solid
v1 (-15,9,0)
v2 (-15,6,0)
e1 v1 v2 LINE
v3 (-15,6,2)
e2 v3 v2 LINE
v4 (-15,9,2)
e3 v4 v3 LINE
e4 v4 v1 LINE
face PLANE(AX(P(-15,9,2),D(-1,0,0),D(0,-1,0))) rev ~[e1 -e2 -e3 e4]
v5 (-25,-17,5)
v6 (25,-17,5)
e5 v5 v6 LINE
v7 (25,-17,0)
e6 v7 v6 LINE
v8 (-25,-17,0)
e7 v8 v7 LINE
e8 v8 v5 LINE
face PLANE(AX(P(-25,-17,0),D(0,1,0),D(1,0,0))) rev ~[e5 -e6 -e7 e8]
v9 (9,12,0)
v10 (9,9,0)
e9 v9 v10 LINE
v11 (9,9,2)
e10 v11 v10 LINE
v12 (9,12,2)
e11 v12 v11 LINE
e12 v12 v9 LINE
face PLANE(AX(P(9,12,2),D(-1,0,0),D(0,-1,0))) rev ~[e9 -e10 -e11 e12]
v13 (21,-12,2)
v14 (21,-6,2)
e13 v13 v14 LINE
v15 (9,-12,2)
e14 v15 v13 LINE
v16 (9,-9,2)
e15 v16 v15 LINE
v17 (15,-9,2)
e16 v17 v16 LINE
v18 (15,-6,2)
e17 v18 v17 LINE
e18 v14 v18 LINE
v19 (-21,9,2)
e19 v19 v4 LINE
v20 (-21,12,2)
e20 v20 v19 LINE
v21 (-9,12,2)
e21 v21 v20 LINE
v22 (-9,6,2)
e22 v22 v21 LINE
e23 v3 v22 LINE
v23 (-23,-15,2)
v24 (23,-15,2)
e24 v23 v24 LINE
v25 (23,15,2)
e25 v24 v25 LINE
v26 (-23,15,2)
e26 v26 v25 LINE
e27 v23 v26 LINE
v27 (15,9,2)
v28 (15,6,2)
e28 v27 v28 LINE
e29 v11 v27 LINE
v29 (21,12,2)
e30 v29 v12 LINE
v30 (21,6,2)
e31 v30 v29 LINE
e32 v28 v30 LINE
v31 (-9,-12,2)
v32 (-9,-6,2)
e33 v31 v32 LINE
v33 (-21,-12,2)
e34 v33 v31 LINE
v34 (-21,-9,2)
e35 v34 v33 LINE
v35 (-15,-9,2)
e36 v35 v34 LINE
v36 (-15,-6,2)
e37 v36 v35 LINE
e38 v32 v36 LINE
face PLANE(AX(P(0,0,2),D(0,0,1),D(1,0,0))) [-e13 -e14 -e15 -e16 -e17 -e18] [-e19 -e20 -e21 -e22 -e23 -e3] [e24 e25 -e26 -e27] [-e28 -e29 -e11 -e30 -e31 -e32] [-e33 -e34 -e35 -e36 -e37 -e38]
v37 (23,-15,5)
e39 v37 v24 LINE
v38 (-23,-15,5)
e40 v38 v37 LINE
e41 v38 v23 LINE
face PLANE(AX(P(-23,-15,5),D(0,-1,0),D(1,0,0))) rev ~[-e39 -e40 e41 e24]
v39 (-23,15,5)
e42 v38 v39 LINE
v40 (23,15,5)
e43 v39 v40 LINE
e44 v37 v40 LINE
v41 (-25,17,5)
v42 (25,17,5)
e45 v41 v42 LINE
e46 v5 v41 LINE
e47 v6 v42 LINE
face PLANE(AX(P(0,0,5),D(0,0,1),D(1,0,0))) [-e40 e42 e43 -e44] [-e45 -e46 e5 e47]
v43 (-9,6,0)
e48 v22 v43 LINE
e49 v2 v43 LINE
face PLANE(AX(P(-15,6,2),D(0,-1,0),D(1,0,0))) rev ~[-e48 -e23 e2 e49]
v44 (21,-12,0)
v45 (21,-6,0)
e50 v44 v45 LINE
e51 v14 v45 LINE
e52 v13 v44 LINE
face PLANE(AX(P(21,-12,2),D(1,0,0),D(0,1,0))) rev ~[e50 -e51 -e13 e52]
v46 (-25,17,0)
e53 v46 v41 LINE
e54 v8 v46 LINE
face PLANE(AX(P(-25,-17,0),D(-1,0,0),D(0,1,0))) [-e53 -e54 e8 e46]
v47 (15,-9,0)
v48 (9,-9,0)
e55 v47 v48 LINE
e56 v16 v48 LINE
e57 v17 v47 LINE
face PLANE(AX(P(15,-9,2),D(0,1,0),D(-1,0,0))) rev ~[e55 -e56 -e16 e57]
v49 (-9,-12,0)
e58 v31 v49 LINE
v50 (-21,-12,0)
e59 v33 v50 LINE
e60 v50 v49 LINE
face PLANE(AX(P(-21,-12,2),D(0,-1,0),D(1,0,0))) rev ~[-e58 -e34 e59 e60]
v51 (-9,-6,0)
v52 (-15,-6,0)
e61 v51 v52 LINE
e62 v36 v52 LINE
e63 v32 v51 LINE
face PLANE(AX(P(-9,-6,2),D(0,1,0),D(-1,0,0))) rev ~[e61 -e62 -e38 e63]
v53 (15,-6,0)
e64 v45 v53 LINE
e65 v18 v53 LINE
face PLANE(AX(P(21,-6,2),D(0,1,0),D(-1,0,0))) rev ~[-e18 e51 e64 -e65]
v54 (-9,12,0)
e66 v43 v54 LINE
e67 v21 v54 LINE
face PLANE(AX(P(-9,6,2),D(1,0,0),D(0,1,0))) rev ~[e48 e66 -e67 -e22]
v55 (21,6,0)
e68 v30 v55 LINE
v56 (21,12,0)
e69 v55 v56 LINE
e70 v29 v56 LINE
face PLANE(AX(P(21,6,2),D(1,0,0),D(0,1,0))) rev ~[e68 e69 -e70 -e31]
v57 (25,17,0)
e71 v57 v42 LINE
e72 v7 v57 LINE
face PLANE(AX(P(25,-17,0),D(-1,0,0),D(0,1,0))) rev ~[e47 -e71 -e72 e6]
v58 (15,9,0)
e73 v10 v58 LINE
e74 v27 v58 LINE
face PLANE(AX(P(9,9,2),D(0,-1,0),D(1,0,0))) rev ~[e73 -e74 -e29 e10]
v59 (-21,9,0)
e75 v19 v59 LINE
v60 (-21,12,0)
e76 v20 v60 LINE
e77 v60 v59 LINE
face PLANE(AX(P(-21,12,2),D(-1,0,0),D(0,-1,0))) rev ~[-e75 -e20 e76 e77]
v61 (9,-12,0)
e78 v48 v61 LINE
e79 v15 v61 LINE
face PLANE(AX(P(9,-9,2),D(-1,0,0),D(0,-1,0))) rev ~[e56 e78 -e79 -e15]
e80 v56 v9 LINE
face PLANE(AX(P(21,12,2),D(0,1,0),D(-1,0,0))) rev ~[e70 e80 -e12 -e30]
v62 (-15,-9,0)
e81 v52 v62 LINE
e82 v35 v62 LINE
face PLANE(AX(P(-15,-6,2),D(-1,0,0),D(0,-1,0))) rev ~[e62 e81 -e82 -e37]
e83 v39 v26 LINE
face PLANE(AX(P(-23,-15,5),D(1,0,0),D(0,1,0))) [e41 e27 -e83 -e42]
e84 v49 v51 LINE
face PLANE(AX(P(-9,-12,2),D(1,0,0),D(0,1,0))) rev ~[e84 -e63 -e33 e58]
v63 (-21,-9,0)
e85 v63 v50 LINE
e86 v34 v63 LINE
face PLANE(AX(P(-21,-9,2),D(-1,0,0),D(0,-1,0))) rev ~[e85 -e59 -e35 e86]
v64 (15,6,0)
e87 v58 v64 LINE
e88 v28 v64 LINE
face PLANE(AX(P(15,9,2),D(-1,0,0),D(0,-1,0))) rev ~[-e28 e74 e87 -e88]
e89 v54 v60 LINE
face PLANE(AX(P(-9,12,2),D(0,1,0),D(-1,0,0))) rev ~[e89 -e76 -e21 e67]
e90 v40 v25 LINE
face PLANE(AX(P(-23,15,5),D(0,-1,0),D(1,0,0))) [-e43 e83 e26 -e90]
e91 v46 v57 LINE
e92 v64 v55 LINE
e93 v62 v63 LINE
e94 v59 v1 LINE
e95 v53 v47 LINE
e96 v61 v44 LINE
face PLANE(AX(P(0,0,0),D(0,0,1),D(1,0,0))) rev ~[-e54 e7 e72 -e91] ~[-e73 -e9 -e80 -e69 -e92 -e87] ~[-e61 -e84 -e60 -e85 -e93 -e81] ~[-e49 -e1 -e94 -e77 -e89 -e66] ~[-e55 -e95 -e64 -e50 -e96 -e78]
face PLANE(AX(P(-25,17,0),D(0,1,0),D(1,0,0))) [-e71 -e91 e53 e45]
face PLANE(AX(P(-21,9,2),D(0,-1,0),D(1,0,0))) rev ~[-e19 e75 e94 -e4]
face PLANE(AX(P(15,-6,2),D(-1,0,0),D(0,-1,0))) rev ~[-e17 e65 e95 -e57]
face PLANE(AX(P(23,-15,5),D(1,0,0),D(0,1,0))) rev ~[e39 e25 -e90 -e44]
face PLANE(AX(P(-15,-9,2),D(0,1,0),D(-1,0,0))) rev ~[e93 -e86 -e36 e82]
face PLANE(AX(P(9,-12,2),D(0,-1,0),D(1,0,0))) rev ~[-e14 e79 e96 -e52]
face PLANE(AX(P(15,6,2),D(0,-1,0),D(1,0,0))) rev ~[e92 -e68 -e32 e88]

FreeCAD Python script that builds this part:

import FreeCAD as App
import Part
import Sketcher
Q = App.Units.Quantity


def add_polygon(sketch, points):
    """Adds a closed chain of lines whose ends are joined by coincident constraints."""
    first, n = sketch.GeometryCount, len(points)
    for a, b in zip(points, points[1:] + points[:1]):
        sketch.addGeometry(Part.LineSegment(App.Vector(*a, 0), App.Vector(*b, 0)), False)
    for i in range(n):
        sketch.addConstraint(Sketcher.Constraint("Coincident", first + i, 2, first + (i + 1) % n, 1))

doc = App.newDocument("Part")
body = doc.addObject("PartDesign::Body", "Body")

sketch1 = body.newObject("Sketcher::SketchObject", "Sketch")
sketch1.AttachmentSupport = (doc.getObject("XY_Plane"), [""])
sketch1.MapMode = "FlatFace"
add_polygon(sketch1, [(-25, 17), (-25, -17), (25, -17), (25, 17)])
sketch1.addConstraint([
    Sketcher.Constraint("Vertical", 0),
    Sketcher.Constraint("Horizontal", 1),
    Sketcher.Constraint("Vertical", 2),
    Sketcher.Constraint("Horizontal", 3),
    Sketcher.Constraint("Symmetric", 0, 2, 2, 2, -1, 1),
    Sketcher.Constraint("DistanceX", 1, 1, 1, 2, Q("50 mm")),
    Sketcher.Constraint("DistanceY", 0, 2, 0, 1, Q("34 mm")),
])
pad1 = body.newObject("PartDesign::Pad", "Pad")
pad1.Profile = sketch1
pad1.Length = 5

sketch2 = body.newObject("Sketcher::SketchObject", "Sketch001")
sketch2.AttachmentSupport = (doc.getObject("XY_Plane"), [""])
sketch2.MapMode = "FlatFace"
sketch2.AttachmentOffset = App.Placement(App.Vector(0, 0, 5), App.Rotation())
add_polygon(sketch2, [(-23, 15), (-23, -15), (23, -15), (23, 15)])
sketch2.addConstraint([
    Sketcher.Constraint("Vertical", 0),
    Sketcher.Constraint("Horizontal", 1),
    Sketcher.Constraint("Vertical", 2),
    Sketcher.Constraint("Horizontal", 3),
    Sketcher.Constraint("Symmetric", 0, 2, 2, 2, -1, 1),
    Sketcher.Constraint("DistanceX", 1, 1, 1, 2, Q("46 mm")),
    Sketcher.Constraint("DistanceY", 0, 2, 0, 1, Q("30 mm")),
])
pocket1 = body.newObject("PartDesign::Pocket", "Pocket")
pocket1.Profile = sketch2
pocket1.Length = 3

sketch3 = body.newObject("Sketcher::SketchObject", "Sketch002")
sketch3.AttachmentSupport = (doc.getObject("XY_Plane"), [""])
sketch3.MapMode = "FlatFace"
sketch3.AttachmentOffset = App.Placement(App.Vector(0, 0, 2), App.Rotation())
add_polygon(sketch3, [(-9, 12), (-21, 12), (-21, 9), (-15, 9), (-15, 6), (-9, 6)])
add_polygon(sketch3, [(21, 12), (9, 12), (9, 9), (15, 9), (15, 6), (21, 6)])
add_polygon(sketch3, [(-15, -9), (-21, -9), (-21, -12), (-9, -12), (-9, -6), (-15, -6)])
add_polygon(sketch3, [(15, -9), (9, -9), (9, -12), (21, -12), (21, -6), (15, -6)])
sketch3.addConstraint([
    Sketcher.Constraint("Horizontal", 0),
    Sketcher.Constraint("Vertical", 1),
    Sketcher.Constraint("Horizontal", 2),
    Sketcher.Constraint("Vertical", 3),
    Sketcher.Constraint("Horizontal", 4),
    Sketcher.Constraint("Vertical", 5),
    Sketcher.Constraint("Horizontal", 6),
    Sketcher.Constraint("Vertical", 7),
    Sketcher.Constraint("Horizontal", 8),
    Sketcher.Constraint("Vertical", 9),
    Sketcher.Constraint("Horizontal", 10),
    Sketcher.Constraint("Vertical", 11),
    Sketcher.Constraint("Horizontal", 12),
    Sketcher.Constraint("Vertical", 13),
    Sketcher.Constraint("Horizontal", 14),
    Sketcher.Constraint("Vertical", 15),
    Sketcher.Constraint("Horizontal", 16),
    Sketcher.Constraint("Vertical", 17),
    Sketcher.Constraint("Horizontal", 18),
    Sketcher.Constraint("Vertical", 19),
    Sketcher.Constraint("Horizontal", 20),
    Sketcher.Constraint("Vertical", 21),
    Sketcher.Constraint("Horizontal", 22),
    Sketcher.Constraint("Vertical", 23),
    Sketcher.Constraint("Symmetric", 11, 2, 13, 2, -1, 1),
    Sketcher.Constraint("Symmetric", 9, 2, 16, 2, -1, 1),
    Sketcher.Constraint("Symmetric", 5, 2, 19, 2, -1, 1),
    Sketcher.Constraint("Symmetric", 3, 2, 22, 2, -1, 1),
    Sketcher.Constraint("Symmetric", 5, 2, 6, 2, -2),
    Sketcher.Constraint("Symmetric", 2, 2, 8, 2, -2),
    Sketcher.Constraint("Symmetric", 1, 2, 12, 2, -1),
    Sketcher.Constraint("Symmetric", 4, 2, 15, 2, -1),
    Sketcher.Constraint("Horizontal", 17, 2, 18, 2),
    Sketcher.Constraint("Vertical", 11, 2, 20, 2),
    Sketcher.Constraint("Equal", 2, 4),
    Sketcher.Constraint("Equal", 1, 3),
    Sketcher.Constraint("Equal", 22, 5),
    Sketcher.Constraint("DistanceX", 0, 2, 0, 1, Q("12 mm")),
    Sketcher.Constraint("DistanceX", 0, 2, -1, 1, Q("21 mm")),
    Sketcher.Constraint("DistanceY", -1, 1, 0, 2, Q("12 mm")),
])
pocket2 = body.newObject("PartDesign::Pocket", "Pocket001")
pocket2.Profile = sketch3
pocket2.Length = 2

doc.recompute()
